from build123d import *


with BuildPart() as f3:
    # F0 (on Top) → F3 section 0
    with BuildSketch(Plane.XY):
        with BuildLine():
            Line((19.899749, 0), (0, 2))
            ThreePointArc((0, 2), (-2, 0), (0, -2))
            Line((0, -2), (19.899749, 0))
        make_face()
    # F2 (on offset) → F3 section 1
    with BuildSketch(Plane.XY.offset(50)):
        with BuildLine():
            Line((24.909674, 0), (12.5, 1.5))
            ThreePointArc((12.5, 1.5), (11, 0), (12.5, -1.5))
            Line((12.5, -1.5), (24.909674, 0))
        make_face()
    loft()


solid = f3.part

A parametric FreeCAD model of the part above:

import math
import FreeCAD as App
import Part
import Sketcher

V = App.Vector
Q = App.Units.Quantity

doc = App.newDocument("Part")
body = doc.addObject("PartDesign::Body", "Body")

# Sketch on XY plane
sketch1 = body.newObject("Sketcher::SketchObject", "Sketch")
sketch1.AttachmentSupport = (doc.getObject("XY_Plane"), [""])
sketch1.MapMode = "FlatFace"
sketch1.addGeometry([
    Part.LineSegment(V(19.9, 0, 0), V(0, 2, 0)),
    Part.ArcOfCircle(Part.Circle(V(0, 0, 0), V(0, 0, 1), 2), math.radians(90), math.radians(270)),
    Part.LineSegment(V(0, -2, 0), V(19.9, 0, 0)),
], False)
sketch1.addConstraint([
    Sketcher.Constraint("Coincident", 0, 2, 1, 1),
    Sketcher.Constraint("Coincident", 1, 2, 2, 1),
    Sketcher.Constraint("Coincident", 2, 2, 0, 1),
    Sketcher.Constraint("Coincident", 1, 3, -1, 1),
    Sketcher.Constraint("PointOnObject", 0, 2, -2),
    Sketcher.Constraint("PointOnObject", 1, 2, -2),
    Sketcher.Constraint("PointOnObject", 2, 2, -1),
    Sketcher.Constraint("Radius", 1, Q("2 mm")),
    Sketcher.Constraint("Distance", 0, Q("20 mm")),
])

# Sketch on XY plane
sketch2 = body.newObject("Sketcher::SketchObject", "Sketch001")
sketch2.AttachmentSupport = (doc.getObject("XY_Plane"), [""])
sketch2.MapMode = "FlatFace"
sketch2.AttachmentOffset = App.Placement(V(0, 0, 50), App.Rotation())
sketch2.addGeometry([
    Part.LineSegment(V(24.9, 0, 0), V(12.5, 1.5, 0)),
    Part.ArcOfCircle(Part.Circle(V(12.5, 0, 0), V(0, 0, 1), 1.5), math.radians(90), math.radians(270)),
    Part.LineSegment(V(12.5, -1.5, 0), V(24.9, 0, 0)),
], False)
sketch2.addConstraint([
    Sketcher.Constraint("Coincident", 0, 2, 1, 1),
    Sketcher.Constraint("Coincident", 1, 2, 2, 1),
    Sketcher.Constraint("Coincident", 2, 2, 0, 1),
    Sketcher.Constraint("Symmetric", 0, 2, 1, 2, -1),
    Sketcher.Constraint("PointOnObject", 2, 2, -1),
    Sketcher.Constraint("Vertical", 1, 3, 0, 2),
    Sketcher.Constraint("Radius", 1, Q("1.5 mm")),
    Sketcher.Constraint("Distance", 0, Q("12.5 mm")),
    Sketcher.Constraint("DistanceX", -1, 1, 1, 3, Q("12.5 mm")),
])

additiveloft = body.newObject("PartDesign::AdditiveLoft", "AdditiveLoft")
additiveloft.Profile = sketch1
additiveloft.Sections = [sketch2]

doc.recompute()
